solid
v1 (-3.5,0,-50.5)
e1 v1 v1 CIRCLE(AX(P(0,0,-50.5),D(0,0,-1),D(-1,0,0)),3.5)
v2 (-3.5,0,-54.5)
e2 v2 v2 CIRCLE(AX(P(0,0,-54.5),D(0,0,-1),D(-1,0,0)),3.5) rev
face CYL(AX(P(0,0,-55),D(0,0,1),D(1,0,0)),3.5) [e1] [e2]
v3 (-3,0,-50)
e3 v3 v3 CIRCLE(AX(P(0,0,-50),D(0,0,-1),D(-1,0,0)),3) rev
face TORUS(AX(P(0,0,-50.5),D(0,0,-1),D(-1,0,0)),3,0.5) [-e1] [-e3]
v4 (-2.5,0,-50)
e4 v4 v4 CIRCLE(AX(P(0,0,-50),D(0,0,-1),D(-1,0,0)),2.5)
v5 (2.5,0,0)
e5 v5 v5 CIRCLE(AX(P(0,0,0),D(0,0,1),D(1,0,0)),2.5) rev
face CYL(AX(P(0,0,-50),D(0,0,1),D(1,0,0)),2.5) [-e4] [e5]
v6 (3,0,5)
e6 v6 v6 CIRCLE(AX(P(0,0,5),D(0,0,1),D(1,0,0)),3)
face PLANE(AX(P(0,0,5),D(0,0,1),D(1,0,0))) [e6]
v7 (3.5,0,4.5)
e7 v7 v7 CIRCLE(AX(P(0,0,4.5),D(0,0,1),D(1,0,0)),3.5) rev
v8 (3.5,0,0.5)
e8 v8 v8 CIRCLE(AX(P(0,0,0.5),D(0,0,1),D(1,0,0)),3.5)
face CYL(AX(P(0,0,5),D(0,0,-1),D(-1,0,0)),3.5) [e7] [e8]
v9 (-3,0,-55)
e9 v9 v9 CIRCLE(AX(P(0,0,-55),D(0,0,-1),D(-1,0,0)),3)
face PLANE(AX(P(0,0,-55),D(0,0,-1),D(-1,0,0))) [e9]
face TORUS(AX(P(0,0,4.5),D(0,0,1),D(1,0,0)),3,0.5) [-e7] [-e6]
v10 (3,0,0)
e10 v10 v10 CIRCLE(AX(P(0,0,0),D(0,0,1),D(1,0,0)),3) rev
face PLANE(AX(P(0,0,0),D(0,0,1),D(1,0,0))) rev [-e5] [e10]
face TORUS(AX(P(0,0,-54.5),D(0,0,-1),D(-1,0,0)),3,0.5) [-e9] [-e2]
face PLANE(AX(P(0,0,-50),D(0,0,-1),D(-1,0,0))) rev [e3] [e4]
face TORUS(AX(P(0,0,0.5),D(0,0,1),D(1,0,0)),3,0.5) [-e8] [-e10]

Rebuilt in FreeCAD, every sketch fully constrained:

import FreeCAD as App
import Part
import Sketcher
from FreeCAD import Vector
Q = App.Units.Quantity


def edges_at(feature, points):
    """Names of the edges that pass closest to the given points."""
    edges = feature.Shape.Edges
    near = lambda p: min(range(len(edges)), key=lambda i: edges[i].distToShape(Part.Vertex(*p))[0])
    return sorted({f"Edge{near(p) + 1}" for p in points})

doc = App.newDocument("Part")
body = doc.addObject("PartDesign::Body", "Body")

sketch1 = doc.addObject("Sketcher::SketchObject", "Sketch")
body.addObject(sketch1)
sketch1.AttachmentSupport = (doc.XY_Plane, [""])
sketch1.MapMode = "FlatFace"
sketch1.addGeometry(Part.Circle(Vector(0, 0, 0), Vector(0, 0, 1), 3.5), False)
sketch1.addConstraint([
    Sketcher.Constraint("Coincident", 0, 3, -1, 1),
    Sketcher.Constraint("Diameter", 0, Q("7 mm")),
])
pad1 = doc.addObject("PartDesign::Pad", "Pad")
body.addObject(pad1)
pad1.Profile = sketch1
pad1.Length = 5

sketch2 = doc.addObject("Sketcher::SketchObject", "Sketch001")
body.addObject(sketch2)
sketch2.AttachmentSupport = (doc.XY_Plane, [""])
sketch2.MapMode = "FlatFace"
sketch2.addGeometry(Part.Circle(Vector(0, 0, 0), Vector(0, 0, 1), 2.5), False)
sketch2.addConstraint([
    Sketcher.Constraint("Coincident", 0, 3, -1, 1),
    Sketcher.Constraint("Diameter", 0, Q("5 mm")),
])
pad2 = doc.addObject("PartDesign::Pad", "Pad001")
body.addObject(pad2)
pad2.Profile = sketch2
pad2.Length = 50
pad2.Reversed = True

sketch3 = doc.addObject("Sketcher::SketchObject", "Sketch002")
body.addObject(sketch3)
sketch3.AttachmentSupport = (doc.XY_Plane, [""])
sketch3.MapMode = "FlatFace"
sketch3.AttachmentOffset = App.Placement(Vector(0, 0, -55), App.Rotation())
sketch3.addGeometry(Part.Circle(Vector(0, 0, 0), Vector(0, 0, 1), 3.5), False)
sketch3.addConstraint([
    Sketcher.Constraint("Coincident", 0, 3, -1, 1),
    Sketcher.Constraint("Diameter", 0, Q("7 mm")),
])
pad3 = doc.addObject("PartDesign::Pad", "Pad002")
body.addObject(pad3)
pad3.Profile = sketch3
pad3.Length = 5
doc.recompute()

fillet = doc.addObject("PartDesign::Fillet", "Fillet")
body.addObject(fillet)
fillet.Base = (pad3, edges_at(pad3, [
    (-3.5, 0, 0),
    (-3.5, 0, 5),
    (-3.5, 0, -50),
    (-3.5, 0, -55),
]))
fillet.Radius = 0.5

doc.recompute()
